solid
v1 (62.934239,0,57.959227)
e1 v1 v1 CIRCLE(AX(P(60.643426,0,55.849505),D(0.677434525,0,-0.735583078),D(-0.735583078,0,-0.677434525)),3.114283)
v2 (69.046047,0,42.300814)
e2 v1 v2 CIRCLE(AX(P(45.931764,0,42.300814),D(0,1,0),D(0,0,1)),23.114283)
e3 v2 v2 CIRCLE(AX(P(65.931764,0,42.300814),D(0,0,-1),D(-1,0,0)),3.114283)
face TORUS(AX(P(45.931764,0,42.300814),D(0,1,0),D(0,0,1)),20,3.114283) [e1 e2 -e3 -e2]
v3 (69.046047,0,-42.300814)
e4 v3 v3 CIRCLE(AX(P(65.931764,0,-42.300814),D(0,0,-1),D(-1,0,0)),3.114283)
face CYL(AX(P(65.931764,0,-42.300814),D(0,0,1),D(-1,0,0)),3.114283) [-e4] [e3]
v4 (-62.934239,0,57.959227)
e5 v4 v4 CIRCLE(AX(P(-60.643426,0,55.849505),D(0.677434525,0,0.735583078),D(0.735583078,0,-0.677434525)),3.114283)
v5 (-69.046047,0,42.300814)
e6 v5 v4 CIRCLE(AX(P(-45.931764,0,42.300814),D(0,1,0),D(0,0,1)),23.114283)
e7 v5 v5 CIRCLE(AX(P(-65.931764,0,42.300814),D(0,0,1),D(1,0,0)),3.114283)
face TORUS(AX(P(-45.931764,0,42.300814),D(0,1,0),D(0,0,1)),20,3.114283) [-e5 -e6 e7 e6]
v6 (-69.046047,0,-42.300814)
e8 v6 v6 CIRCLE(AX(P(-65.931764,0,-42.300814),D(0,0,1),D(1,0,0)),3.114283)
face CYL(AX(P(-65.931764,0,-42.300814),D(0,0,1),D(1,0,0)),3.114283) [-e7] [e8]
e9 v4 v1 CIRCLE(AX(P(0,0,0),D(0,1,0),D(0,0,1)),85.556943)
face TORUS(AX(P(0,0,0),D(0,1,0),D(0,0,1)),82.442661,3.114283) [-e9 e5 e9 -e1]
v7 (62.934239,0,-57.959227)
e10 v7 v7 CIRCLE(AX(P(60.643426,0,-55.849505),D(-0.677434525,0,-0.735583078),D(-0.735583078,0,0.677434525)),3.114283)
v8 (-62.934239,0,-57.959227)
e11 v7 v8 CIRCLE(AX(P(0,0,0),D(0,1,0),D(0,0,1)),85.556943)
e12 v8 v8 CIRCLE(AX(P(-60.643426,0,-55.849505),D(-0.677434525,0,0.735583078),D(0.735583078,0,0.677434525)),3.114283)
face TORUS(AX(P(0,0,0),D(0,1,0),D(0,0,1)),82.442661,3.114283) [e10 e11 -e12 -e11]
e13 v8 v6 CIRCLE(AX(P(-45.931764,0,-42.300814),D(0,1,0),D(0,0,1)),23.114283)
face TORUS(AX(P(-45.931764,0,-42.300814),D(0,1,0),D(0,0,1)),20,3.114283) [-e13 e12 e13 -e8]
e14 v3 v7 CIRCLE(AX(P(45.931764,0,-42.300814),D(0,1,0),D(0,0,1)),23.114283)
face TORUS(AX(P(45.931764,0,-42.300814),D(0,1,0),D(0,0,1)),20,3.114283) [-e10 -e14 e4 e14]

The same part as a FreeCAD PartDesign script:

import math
import FreeCAD as App
import Part
import Sketcher
from FreeCAD import Vector
Q = App.Units.Quantity

doc = App.newDocument("Part")
body = doc.addObject("PartDesign::Body", "Body")

# Sketch on YZ plane
sketch1 = body.newObject("Sketcher::SketchObject", "Sketch")
sketch1.AttachmentSupport = (doc.getObject("YZ_Plane"), [""])
sketch1.MapMode = "FlatFace"
sketch1.addGeometry(Part.Circle(Vector(0, 82.4, 0), Vector(0, 0, 1), 3.1), False)
sketch1.addConstraint([
    Sketcher.Constraint("PointOnObject", 0, 3, -2),
    Sketcher.Constraint("Diameter", 0, Q("6.228565 mm")),
    Sketcher.Constraint("DistanceY", -1, 1, 0, 3, Q("82.442661 mm")),
])

# Sketch on XZ plane
sketch2 = body.newObject("Sketcher::SketchObject", "Sketch001")
sketch2.AttachmentSupport = (doc.getObject("XZ_Plane"), [""])
sketch2.MapMode = "FlatFace"
sketch2.addGeometry([
    Part.ArcOfCircle(Part.Circle(Vector(0, 0, 0), Vector(0, 0, 1), 82), math.radians(90), math.radians(137)),  # 0
    Part.ArcOfCircle(Part.Circle(Vector(-46, 42, 0), Vector(0, 0, 1), 20), math.radians(137), math.radians(180)),  # 1
    Part.LineSegment(Vector(-66, 42, 0), Vector(-66, -42, 0)),  # 2
    Part.ArcOfCircle(Part.Circle(Vector(-46, -42, 0), Vector(0, 0, 1), 20), math.radians(180), math.radians(223)),  # 3
    Part.ArcOfCircle(Part.Circle(Vector(0, 0, 0), Vector(0, 0, 1), 82), math.radians(-137), math.radians(-90)),  # 4
], False)
sketch2.addConstraint([
    Sketcher.Constraint("Tangent", 0, 2, 1, 1),
    Sketcher.Constraint("Tangent", 1, 2, 2, 1),
    Sketcher.Constraint("Tangent", 2, 2, 3, 1),
    Sketcher.Constraint("Tangent", 3, 2, 4, 1),
    Sketcher.Constraint("Vertical", 2),
    Sketcher.Constraint("Coincident", 0, 3, -1, 1),
    Sketcher.Constraint("Coincident", 4, 3, -1, 1),
    Sketcher.Constraint("Equal", 1, 3),
    Sketcher.Constraint("Equal", 0, 4),
    Sketcher.Constraint("PointOnObject", 0, 1, -2),
    Sketcher.Constraint("PointOnObject", 4, 2, -2),
    Sketcher.Constraint("Radius", 1, Q("20 mm")),
    Sketcher.Constraint("Radius", 0, Q("82.442661 mm")),
    Sketcher.Constraint("DistanceY", 2, 2, 2, 1, Q("84.601628 mm")),
])
doc.recompute()

additivepipe = body.newObject("PartDesign::AdditivePipe", "AdditivePipe")
additivepipe.Profile = sketch1
additivepipe.Spine = (sketch2, ["Edge1", "Edge2", "Edge3", "Edge4", "Edge5"])
body2 = doc.addObject("PartDesign::Body", "Body001")
doc.recompute()

body2.BaseFeature = body
doc.recompute()

mirroring = doc.addObject("Part::Mirroring", "Mirroring")
mirroring.Source = body
mirroring.Base = Vector(0, 0, 82.442661)
mirroring.Normal = Vector(1, 0, 0)
body3 = doc.addObject("PartDesign::Body", "Body002")
body3.BaseFeature = mirroring
boolean = body2.newObject("PartDesign::Boolean", "Boolean")
boolean.Type = "Fuse"
boolean.addObjects([body3])
doc.recompute()
mirroring.Visibility = False

doc.recompute()
